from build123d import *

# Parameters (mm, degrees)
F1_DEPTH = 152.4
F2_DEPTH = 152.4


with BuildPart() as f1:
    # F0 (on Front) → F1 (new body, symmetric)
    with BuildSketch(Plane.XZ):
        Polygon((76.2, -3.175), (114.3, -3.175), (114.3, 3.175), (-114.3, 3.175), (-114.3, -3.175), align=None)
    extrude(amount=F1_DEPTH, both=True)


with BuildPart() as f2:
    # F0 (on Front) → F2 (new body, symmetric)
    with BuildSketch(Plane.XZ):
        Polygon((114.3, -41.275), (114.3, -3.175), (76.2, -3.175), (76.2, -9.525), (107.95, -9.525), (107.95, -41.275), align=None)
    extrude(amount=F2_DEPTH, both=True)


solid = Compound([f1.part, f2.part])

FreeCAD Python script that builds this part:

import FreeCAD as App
import Part
import Sketcher

V = App.Vector
Q = App.Units.Quantity


def add_polygon(sketch, points):
    """Adds a closed chain of lines whose ends are joined by coincident constraints."""
    first, n = sketch.GeometryCount, len(points)
    for a, b in zip(points, points[1:] + points[:1]):
        sketch.addGeometry(Part.LineSegment(App.Vector(*a, 0), App.Vector(*b, 0)), False)
    for i in range(n):
        sketch.addConstraint(Sketcher.Constraint("Coincident", first + i, 2, first + (i + 1) % n, 1))

doc = App.newDocument("Part")
body = doc.addObject("PartDesign::Body", "Body")

# Sketch on XZ plane
sketch1 = doc.addObject("Sketcher::SketchObject", "Sketch")
body.addObject(sketch1)
sketch1.AttachmentSupport = (doc.XZ_Plane, [""])
sketch1.MapMode = "FlatFace"
add_polygon(sketch1, [(114, -3), (114, 3), (-114, 3), (-114, -3)])  # lines 0-3
sketch1.addConstraint([
    Sketcher.Constraint("Vertical", 0),
    Sketcher.Constraint("Horizontal", 1),
    Sketcher.Constraint("Vertical", 2),
    Sketcher.Constraint("Horizontal", 3),
    Sketcher.Constraint("Symmetric", 0, 2, 2, 2, -1, 1),
    Sketcher.Constraint("DistanceX", 1, 2, 1, 1, Q("9 in")),
    Sketcher.Constraint("DistanceY", 0, 1, 0, 2, Q("0.25 in")),
])
pad1 = doc.addObject("PartDesign::Pad", "Pad")
body.addObject(pad1)
pad1.Profile = sketch1
pad1.Length = Q("12 in")
pad1.Midplane = True
body2 = doc.addObject("PartDesign::Body", "Body001")

# Sketch on XZ plane
sketch2 = doc.addObject("Sketcher::SketchObject", "Sketch001")
body2.addObject(sketch2)
sketch2.AttachmentSupport = (doc.getObject("XZ_Plane001"), [""])
sketch2.MapMode = "FlatFace"
add_polygon(sketch2, [(114, -41), (114, -3), (76, -3), (76, -10), (108, -10), (108, -41)])  # lines 0-5
sketch2.addConstraint([
    Sketcher.Constraint("Vertical", 0),
    Sketcher.Constraint("Horizontal", 1),
    Sketcher.Constraint("Vertical", 2),
    Sketcher.Constraint("Horizontal", 3),
    Sketcher.Constraint("Vertical", 4),
    Sketcher.Constraint("Horizontal", 5),
    Sketcher.Constraint("Equal", 1, 0),
    Sketcher.Constraint("Equal", 5, 2),
    Sketcher.Constraint("DistanceX", 1, 2, 1, 1, Q("1.5 in")),
    Sketcher.Constraint("DistanceX", -1, 1, 1, 2, Q("3 in")),
    Sketcher.Constraint("DistanceX", 3, 1, 3, 2, Q("1.25 in")),
    Sketcher.Constraint("DistanceY", 0, 2, -1, 1, Q("0.125 in")),
])
pad2 = doc.addObject("PartDesign::Pad", "Pad001")
body2.addObject(pad2)
pad2.Profile = sketch2
pad2.Length = Q("12 in")
pad2.Midplane = True

doc.recompute()
